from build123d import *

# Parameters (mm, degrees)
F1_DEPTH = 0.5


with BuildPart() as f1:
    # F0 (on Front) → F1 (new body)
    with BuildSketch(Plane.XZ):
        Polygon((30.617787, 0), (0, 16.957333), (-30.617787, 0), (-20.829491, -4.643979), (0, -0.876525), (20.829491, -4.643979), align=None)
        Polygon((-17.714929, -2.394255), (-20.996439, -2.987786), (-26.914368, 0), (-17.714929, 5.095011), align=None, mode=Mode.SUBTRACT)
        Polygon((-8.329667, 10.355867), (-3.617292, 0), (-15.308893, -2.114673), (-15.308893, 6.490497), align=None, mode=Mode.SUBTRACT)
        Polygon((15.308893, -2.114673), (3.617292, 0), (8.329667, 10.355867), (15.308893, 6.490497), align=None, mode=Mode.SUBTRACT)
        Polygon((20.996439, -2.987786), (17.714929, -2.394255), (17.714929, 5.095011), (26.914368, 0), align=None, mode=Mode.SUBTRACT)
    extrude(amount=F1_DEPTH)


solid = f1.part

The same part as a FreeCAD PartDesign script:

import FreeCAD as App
import Part
import Sketcher


def add_polygon(sketch, points):
    """Adds a closed chain of lines whose ends are joined by coincident constraints."""
    first, n = sketch.GeometryCount, len(points)
    for a, b in zip(points, points[1:] + points[:1]):
        sketch.addGeometry(Part.LineSegment(App.Vector(*a, 0), App.Vector(*b, 0)), False)
    for i in range(n):
        sketch.addConstraint(Sketcher.Constraint("Coincident", first + i, 2, first + (i + 1) % n, 1))

doc = App.newDocument("Part")
body = doc.addObject("PartDesign::Body", "Body")

# Sketch on XZ plane
sketch1 = doc.addObject("Sketcher::SketchObject", "Sketch")
body.addObject(sketch1)
sketch1.AttachmentSupport = (doc.XZ_Plane, [""])
sketch1.MapMode = "FlatFace"
add_polygon(sketch1, [(30.6, 0), (0, 17), (-30.6, 0), (-20.8, -4.6), (0, -0.9), (20.8, -4.6)])  # lines 0-5
add_polygon(sketch1, [(-17.7, 5.1), (-17.7, -2.4), (-21, -3), (-26.9, 0)])  # lines 6-9
add_polygon(sketch1, [(26.9, 0), (21, -3), (17.7, -2.4), (17.7, 5.1)])  # lines 10-13
add_polygon(sketch1, [(-15.3, 6.5), (-8.3, 10.4), (-3.6, 0), (-15.3, -2.1)])  # lines 14-17
add_polygon(sketch1, [(15.3, 6.5), (15.3, -2.1), (3.6, 0), (8.3, 10.4)])  # lines 18-21
sketch1.addConstraint([
    Sketcher.Constraint("Vertical", 6),
    Sketcher.Constraint("Vertical", 12),
    Sketcher.Constraint("Vertical", 17),
    Sketcher.Constraint("Vertical", 18),
    Sketcher.Constraint("Symmetric", 1, 2, 5, 2, -1, 1),
    Sketcher.Constraint("Symmetric", 8, 2, 13, 2, -1, 1),
    Sketcher.Constraint("Symmetric", 15, 2, 19, 2, -1, 1),
    Sketcher.Constraint("Symmetric", 2, 2, 4, 2, -2),
    Sketcher.Constraint("Symmetric", 7, 2, 10, 2, -2),
    Sketcher.Constraint("Symmetric", 6, 2, 11, 2, -2),
    Sketcher.Constraint("Symmetric", 16, 2, 18, 2, -2),
    Sketcher.Constraint("Symmetric", 14, 2, 20, 2, -2),
    Sketcher.Constraint("PointOnObject", 0, 2, -2),
    Sketcher.Constraint("PointOnObject", 1, 2, -1),
    Sketcher.Constraint("PointOnObject", 3, 2, -2),
    Sketcher.Constraint("PointOnObject", 8, 2, -1),
    Sketcher.Constraint("PointOnObject", 15, 2, -1),
    Sketcher.Constraint("Parallel", 3, 7),
    Sketcher.Constraint("Parallel", 1, 9),
    Sketcher.Constraint("Parallel", 0, 13),
    Sketcher.Constraint("Parallel", 9, 14),
    Sketcher.Constraint("Parallel", 7, 16),
    Sketcher.Constraint("Parallel", 13, 21),
    Sketcher.Constraint("Distance", 0, 35.0),
    Sketcher.Constraint("DistanceY", 17, 1, 17, 2, 8.60517),
    Sketcher.Constraint("DistanceX", 2, 2, 16, 2, 5.520598),
    Sketcher.Constraint("DistanceX", 19, 2, 18, 2, 11.691601),
    Sketcher.Constraint("Distance", 2, 10.83408),
    Sketcher.Constraint("Distance", 3, 21.167461),
    Sketcher.Constraint("Distance", 9, 10.516122),
    Sketcher.Constraint("Distance", 15, 11.37763),
    Sketcher.Constraint("DistanceY", 6, 2, 6, 1, 7.489266),
    Sketcher.Constraint("DistanceX", 2, 2, -1, 1, 20.829491),
    Sketcher.Constraint("DistanceY", 2, 2, -1, 1, 4.643979),
    Sketcher.Constraint("DistanceX", 6, 2, -1, 1, 17.714929),
    Sketcher.Constraint("DistanceX", 7, 2, -1, 1, 20.996439),
])
pad1 = doc.addObject("PartDesign::Pad", "Pad")
body.addObject(pad1)
pad1.Profile = sketch1
pad1.Length = 0.5

doc.recompute()
